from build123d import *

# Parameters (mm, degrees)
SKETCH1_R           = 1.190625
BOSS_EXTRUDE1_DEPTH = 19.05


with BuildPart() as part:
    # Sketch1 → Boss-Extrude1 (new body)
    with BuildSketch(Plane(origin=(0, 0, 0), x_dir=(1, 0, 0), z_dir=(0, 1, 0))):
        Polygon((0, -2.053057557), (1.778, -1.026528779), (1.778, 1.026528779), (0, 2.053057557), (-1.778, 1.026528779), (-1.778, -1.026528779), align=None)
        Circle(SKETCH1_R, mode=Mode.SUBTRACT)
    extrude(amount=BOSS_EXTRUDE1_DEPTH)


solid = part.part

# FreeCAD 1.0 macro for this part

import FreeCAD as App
import Part
import Sketcher
Q = App.Units.Quantity


def add_polygon(sketch, points):
    """Adds a closed chain of lines whose ends are joined by coincident constraints."""
    first, n = sketch.GeometryCount, len(points)
    for a, b in zip(points, points[1:] + points[:1]):
        sketch.addGeometry(Part.LineSegment(App.Vector(*a, 0), App.Vector(*b, 0)), False)
    for i in range(n):
        sketch.addConstraint(Sketcher.Constraint("Coincident", first + i, 2, first + (i + 1) % n, 1))

doc = App.newDocument("Part")
body = doc.addObject("PartDesign::Body", "Body")

# Sketch on XZ plane
sketch1 = body.newObject("Sketcher::SketchObject", "Sketch")
sketch1.AttachmentSupport = (doc.getObject("XZ_Plane"), [""])
sketch1.MapMode = "FlatFace"
add_polygon(sketch1, [(0, 2.1), (1.8, 1), (1.8, -1), (0, -2.1), (-1.8, -1), (-1.8, 1)])  # lines 0-5
sketch1.addGeometry(Part.Circle(App.Vector(0, 0, 0), App.Vector(0, 0, 1), 1.2), False)  # 6
sketch1.addConstraint([
    Sketcher.Constraint("Vertical", 1),
    Sketcher.Constraint("Vertical", 4),
    Sketcher.Constraint("Coincident", 6, 3, -1, 1),
    Sketcher.Constraint("Symmetric", 0, 2, 3, 2, -1, 1),
    Sketcher.Constraint("Symmetric", 2, 2, 5, 2, -1, 1),
    Sketcher.Constraint("PointOnObject", 2, 2, -2),
    Sketcher.Constraint("Parallel", 2, 5),
    Sketcher.Constraint("Horizontal", 1, 2, 3, 2),
    Sketcher.Constraint("Diameter", 6, Q("0.09375 in")),
    Sketcher.Constraint("Angle", 0, Q("-30 deg")),
    Sketcher.Constraint("DistanceX", -1, 1, 0, 2, Q("0.07 in")),
    Sketcher.Constraint("DistanceY", 1, 2, 1, 1, 2.053058),
])
pad1 = body.newObject("PartDesign::Pad", "Pad")
pad1.Profile = sketch1
pad1.Length = Q("0.75 in")
pad1.Reversed = True

doc.recompute()
